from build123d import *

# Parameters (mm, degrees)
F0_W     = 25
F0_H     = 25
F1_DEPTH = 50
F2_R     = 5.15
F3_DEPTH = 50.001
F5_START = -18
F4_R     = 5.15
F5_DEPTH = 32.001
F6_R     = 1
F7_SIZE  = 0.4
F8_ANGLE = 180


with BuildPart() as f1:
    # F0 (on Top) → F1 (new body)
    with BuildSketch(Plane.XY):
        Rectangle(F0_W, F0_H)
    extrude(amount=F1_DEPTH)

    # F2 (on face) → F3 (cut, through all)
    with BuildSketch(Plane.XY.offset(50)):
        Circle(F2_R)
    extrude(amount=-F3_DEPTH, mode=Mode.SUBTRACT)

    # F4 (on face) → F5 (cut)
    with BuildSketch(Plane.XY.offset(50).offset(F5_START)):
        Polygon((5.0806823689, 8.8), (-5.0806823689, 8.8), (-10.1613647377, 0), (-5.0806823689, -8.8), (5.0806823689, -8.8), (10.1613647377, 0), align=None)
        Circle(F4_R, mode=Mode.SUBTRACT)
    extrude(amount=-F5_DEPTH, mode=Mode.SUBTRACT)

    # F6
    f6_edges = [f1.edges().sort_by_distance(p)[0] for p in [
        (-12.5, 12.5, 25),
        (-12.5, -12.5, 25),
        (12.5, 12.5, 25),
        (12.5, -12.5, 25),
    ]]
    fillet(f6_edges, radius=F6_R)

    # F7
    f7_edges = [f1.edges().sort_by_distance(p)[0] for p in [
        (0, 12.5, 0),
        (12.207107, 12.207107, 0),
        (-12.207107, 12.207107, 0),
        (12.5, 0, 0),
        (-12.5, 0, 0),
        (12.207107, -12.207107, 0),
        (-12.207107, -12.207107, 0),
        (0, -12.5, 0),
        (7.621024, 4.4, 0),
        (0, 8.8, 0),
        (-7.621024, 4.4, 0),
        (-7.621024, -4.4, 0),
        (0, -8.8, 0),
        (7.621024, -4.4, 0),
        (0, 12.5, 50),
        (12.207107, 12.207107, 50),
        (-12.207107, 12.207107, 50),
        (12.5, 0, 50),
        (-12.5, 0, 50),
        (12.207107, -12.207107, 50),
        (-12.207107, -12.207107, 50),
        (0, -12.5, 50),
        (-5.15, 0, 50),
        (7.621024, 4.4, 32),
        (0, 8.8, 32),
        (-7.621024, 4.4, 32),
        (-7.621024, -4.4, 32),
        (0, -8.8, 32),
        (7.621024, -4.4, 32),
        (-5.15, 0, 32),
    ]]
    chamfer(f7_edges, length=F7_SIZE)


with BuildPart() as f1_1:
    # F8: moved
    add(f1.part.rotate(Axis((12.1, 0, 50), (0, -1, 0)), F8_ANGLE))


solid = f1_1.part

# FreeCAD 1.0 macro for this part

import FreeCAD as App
import Part
import Sketcher
from FreeCAD import Vector
Q = App.Units.Quantity


def edges_at(feature, points):
    """Names of the edges that pass closest to the given points."""
    edges = feature.Shape.Edges
    near = lambda p: min(range(len(edges)), key=lambda i: edges[i].distToShape(Part.Vertex(*p))[0])
    return sorted({f"Edge{near(p) + 1}" for p in points})


def add_polygon(sketch, points):
    """Adds a closed chain of lines whose ends are joined by coincident constraints."""
    first, n = sketch.GeometryCount, len(points)
    for a, b in zip(points, points[1:] + points[:1]):
        sketch.addGeometry(Part.LineSegment(App.Vector(*a, 0), App.Vector(*b, 0)), False)
    for i in range(n):
        sketch.addConstraint(Sketcher.Constraint("Coincident", first + i, 2, first + (i + 1) % n, 1))

doc = App.newDocument("Part")
body = doc.addObject("PartDesign::Body", "Body")

# Sketch on XY plane
sketch1 = doc.addObject("Sketcher::SketchObject", "Sketch")
body.addObject(sketch1)
sketch1.AttachmentSupport = (doc.XY_Plane, [""])
sketch1.MapMode = "FlatFace"
add_polygon(sketch1, [(-12.5, 12.5), (-12.5, -12.5), (12.5, -12.5), (12.5, 12.5)])  # lines 0-3
sketch1.addConstraint(Sketcher.Constraint("Vertical", 0))
sketch1.addConstraint(Sketcher.Constraint("Horizontal", 1))
sketch1.addConstraint(Sketcher.Constraint("Vertical", 2))
sketch1.addConstraint(Sketcher.Constraint("Horizontal", 3))
sketch1.addConstraint(Sketcher.Constraint("Symmetric", 0, 2, 2, 2, -1, 1))
sketch1.addConstraint(Sketcher.Constraint("Equal", 3, 0))
sketch1.addConstraint(Sketcher.Constraint("DistanceX", 1, 1, 1, 2, 25.0))
pad1 = doc.addObject("PartDesign::Pad", "Pad")
body.addObject(pad1)
pad1.Profile = sketch1
pad1.Length = 50

# Sketch on XY plane
sketch2 = doc.addObject("Sketcher::SketchObject", "Sketch001")
body.addObject(sketch2)
sketch2.AttachmentSupport = (doc.XY_Plane, [""])
sketch2.MapMode = "FlatFace"
sketch2.AttachmentOffset = App.Placement(Vector(0, 0, 50), App.Rotation())
sketch2.addGeometry(Part.Circle(Vector(0, 0, 0), Vector(0, 0, 1), 5.15), False)
sketch2.addConstraint(Sketcher.Constraint("Coincident", 0, 3, -1, 1))
sketch2.addConstraint(Sketcher.Constraint("Diameter", 0, 10.3))
pocket1 = doc.addObject("PartDesign::Pocket", "Pocket")
body.addObject(pocket1)
pocket1.Profile = sketch2
pocket1.Type = "ThroughAll"

# Sketch on XY plane
sketch3 = doc.addObject("Sketcher::SketchObject", "Sketch002")
body.addObject(sketch3)
sketch3.AttachmentSupport = (doc.XY_Plane, [""])
sketch3.MapMode = "FlatFace"
sketch3.AttachmentOffset = App.Placement(Vector(0, 0, 32), App.Rotation())
add_polygon(sketch3, [(5.080682, 8.8), (-5.080682, 8.8), (-10.161365, 0), (-5.080682, -8.8), (5.080682, -8.8), (10.161365, 0)])  # lines 0-5
sketch3.addGeometry(Part.Circle(Vector(0, 0, 0), Vector(0, 0, 1), 5.15), False)  # 6
sketch3.addConstraint(Sketcher.Constraint("Horizontal", 0))
sketch3.addConstraint(Sketcher.Constraint("Horizontal", 3))
sketch3.addConstraint(Sketcher.Constraint("Coincident", 6, 3, -1, 1))
sketch3.addConstraint(Sketcher.Constraint("Symmetric", 0, 2, 3, 2, -1, 1))
sketch3.addConstraint(Sketcher.Constraint("Symmetric", 1, 2, 4, 2, -1, 1))
sketch3.addConstraint(Sketcher.Constraint("PointOnObject", 1, 2, -1))
sketch3.addConstraint(Sketcher.Constraint("Parallel", 2, 5))
sketch3.addConstraint(Sketcher.Constraint("Vertical", 0, 2, 2, 2))
sketch3.addConstraint(Sketcher.Constraint("Diameter", 6, 10.3))
sketch3.addConstraint(Sketcher.Constraint("Angle", 1, Q("-120 deg")))
sketch3.addConstraint(Sketcher.Constraint("DistanceY", -1, 1, 0, 2, 8.8))
sketch3.addConstraint(Sketcher.Constraint("DistanceX", 0, 2, 0, 1, 10.161365))
pocket2 = doc.addObject("PartDesign::Pocket", "Pocket001")
body.addObject(pocket2)
pocket2.Profile = sketch3
pocket2.Length = 32.001
doc.recompute()

fillet = doc.addObject("PartDesign::Fillet", "Fillet")
body.addObject(fillet)
fillet.Base = (pocket2, edges_at(pocket2, [
    (-12.5, 12.5, 25),
    (-12.5, -12.5, 25),
    (12.5, 12.5, 25),
    (12.5, -12.5, 25),
]))
fillet.Radius = 1
doc.recompute()

chamfer = doc.addObject("PartDesign::Chamfer", "Chamfer")
body.addObject(chamfer)
chamfer.Base = (fillet, edges_at(fillet, [
    (0, 12.5, 0),
    (12.207, 12.207, 0),
    (-12.207, 12.207, 0),
    (12.5, 0, 0),
    (-12.5, 0, 0),
    (12.207, -12.207, 0),
    (-12.207, -12.207, 0),
    (0, -12.5, 0),
    (7.621, 4.4, 0),
    (0, 8.8, 0),
    (-7.621, 4.4, 0),
    (-7.621, -4.4, 0),
    (0, -8.8, 0),
    (7.621, -4.4, 0),
    (0, 12.5, 50),
    (12.207, 12.207, 50),
    (-12.207, 12.207, 50),
    (12.5, 0, 50),
    (-12.5, 0, 50),
    (12.207, -12.207, 50),
    (-12.207, -12.207, 50),
    (0, -12.5, 50),
    (-5.15, 0, 50),
    (7.621, 4.4, 32),
    (0, 8.8, 32),
    (-7.621, 4.4, 32),
    (-7.621, -4.4, 32),
    (0, -8.8, 32),
    (7.621, -4.4, 32),
    (-5.15, 0, 32),
]))
chamfer.Size = 0.4
body2 = doc.addObject("PartDesign::Body", "Body001")
doc.recompute()

body.Placement = App.Placement(Vector(24.2, 0, 100), App.Rotation(Vector(0, -1, 0), 180))
boolean = doc.addObject("PartDesign::Boolean", "Boolean")
body2.addObject(boolean)
boolean.Type = "Fuse"
boolean.addObjects([body])

doc.recompute()
